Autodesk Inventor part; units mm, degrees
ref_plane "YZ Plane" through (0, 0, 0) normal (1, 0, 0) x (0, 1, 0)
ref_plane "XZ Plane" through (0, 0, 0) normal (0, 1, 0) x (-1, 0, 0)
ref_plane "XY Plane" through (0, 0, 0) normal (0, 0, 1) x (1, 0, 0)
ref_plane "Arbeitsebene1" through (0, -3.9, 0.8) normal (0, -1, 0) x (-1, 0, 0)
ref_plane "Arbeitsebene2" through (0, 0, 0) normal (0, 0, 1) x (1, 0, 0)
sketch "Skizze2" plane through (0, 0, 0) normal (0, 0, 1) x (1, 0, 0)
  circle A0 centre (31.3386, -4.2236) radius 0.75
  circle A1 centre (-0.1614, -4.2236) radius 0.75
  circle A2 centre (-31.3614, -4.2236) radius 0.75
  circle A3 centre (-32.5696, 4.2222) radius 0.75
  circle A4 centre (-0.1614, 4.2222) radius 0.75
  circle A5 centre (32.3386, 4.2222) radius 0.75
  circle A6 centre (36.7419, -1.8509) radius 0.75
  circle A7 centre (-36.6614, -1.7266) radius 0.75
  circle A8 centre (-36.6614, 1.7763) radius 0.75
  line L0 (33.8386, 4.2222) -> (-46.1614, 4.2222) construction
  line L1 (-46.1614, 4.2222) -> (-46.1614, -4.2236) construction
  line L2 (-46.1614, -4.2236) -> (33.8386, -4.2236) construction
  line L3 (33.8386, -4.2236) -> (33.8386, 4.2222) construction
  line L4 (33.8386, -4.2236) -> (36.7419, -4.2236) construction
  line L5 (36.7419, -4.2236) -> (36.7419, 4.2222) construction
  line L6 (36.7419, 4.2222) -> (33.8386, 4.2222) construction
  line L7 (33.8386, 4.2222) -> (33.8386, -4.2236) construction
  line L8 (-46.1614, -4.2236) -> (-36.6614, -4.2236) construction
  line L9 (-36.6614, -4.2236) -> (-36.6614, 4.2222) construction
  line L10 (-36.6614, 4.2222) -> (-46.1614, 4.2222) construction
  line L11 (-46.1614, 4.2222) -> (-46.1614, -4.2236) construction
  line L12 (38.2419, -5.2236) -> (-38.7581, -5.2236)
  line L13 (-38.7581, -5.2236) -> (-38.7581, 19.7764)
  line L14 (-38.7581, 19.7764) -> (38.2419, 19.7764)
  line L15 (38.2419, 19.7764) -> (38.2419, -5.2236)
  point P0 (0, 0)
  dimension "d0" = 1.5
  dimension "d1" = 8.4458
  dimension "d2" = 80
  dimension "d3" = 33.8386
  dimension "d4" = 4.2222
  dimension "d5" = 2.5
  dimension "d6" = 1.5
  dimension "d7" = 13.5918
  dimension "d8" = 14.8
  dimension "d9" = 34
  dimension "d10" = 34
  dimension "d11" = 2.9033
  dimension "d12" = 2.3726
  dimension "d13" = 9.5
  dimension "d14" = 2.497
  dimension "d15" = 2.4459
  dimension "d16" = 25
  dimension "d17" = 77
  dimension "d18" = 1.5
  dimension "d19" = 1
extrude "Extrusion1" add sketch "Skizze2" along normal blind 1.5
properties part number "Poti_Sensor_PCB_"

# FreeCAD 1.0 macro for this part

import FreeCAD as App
import Part
import Sketcher
from FreeCAD import Vector
Q = App.Units.Quantity

doc = App.newDocument("Part")
params = doc.addObject("Spreadsheet::Sheet", "Params")
for row, (alias, value) in enumerate([
    ("sketch1_diameter", "1.5 mm"),
    ("sketch1_width", "77 mm"),
    ("sketch1_height", "25 mm"),
    ("pad1_length", "1.5 mm"),
], start=1):
    params.set(f"A{row}", alias)
    params.set(f"B{row}", "=" + value)
    params.setAlias(f"B{row}", alias)

body = doc.addObject("PartDesign::Body", "Body")

# Sketch on XY plane
sketch1 = doc.addObject("Sketcher::SketchObject", "Sketch")
body.addObject(sketch1)
sketch1.AttachmentSupport = (doc.XY_Plane, [""])
sketch1.MapMode = "FlatFace"
sketch1.addGeometry([
    Part.LineSegment(Vector(-38.8, -5.2, 0), Vector(38.2, -5.2, 0)),  # 0
    Part.LineSegment(Vector(38.2, -5.2, 0), Vector(38.2, 19.8, 0)),  # 1
    Part.LineSegment(Vector(38.2, 19.8, 0), Vector(-38.8, 19.8, 0)),  # 2
    Part.LineSegment(Vector(-38.8, 19.8, 0), Vector(-38.8, -5.2, 0)),  # 3
    Part.Circle(Vector(-31.4, -4.2, 0), Vector(0, 0, 1), 0.8),  # 4
    Part.Circle(Vector(-36.7, -1.7, 0), Vector(0, 0, 1), 0.8),  # 5
    Part.Circle(Vector(-36.7, 1.8, 0), Vector(0, 0, 1), 0.8),  # 6
    Part.Circle(Vector(-32.6, 4.2, 0), Vector(0, 0, 1), 0.8),  # 7
    Part.Circle(Vector(-0.2, -4.2, 0), Vector(0, 0, 1), 0.8),  # 8
    Part.Circle(Vector(31.3, -4.2, 0), Vector(0, 0, 1), 0.8),  # 9
    Part.Circle(Vector(36.7, -1.9, 0), Vector(0, 0, 1), 0.8),  # 10
    Part.Circle(Vector(-0.2, 4.2, 0), Vector(0, 0, 1), 0.8),  # 11
    Part.Circle(Vector(32.3, 4.2, 0), Vector(0, 0, 1), 0.8),  # 12
], False)
sketch1.addConstraint([
    Sketcher.Constraint("Coincident", 0, 2, 1, 1),
    Sketcher.Constraint("Coincident", 1, 2, 2, 1),
    Sketcher.Constraint("Coincident", 2, 2, 3, 1),
    Sketcher.Constraint("Coincident", 3, 2, 0, 1),
    Sketcher.Constraint("Horizontal", 0),
    Sketcher.Constraint("Vertical", 1),
    Sketcher.Constraint("Horizontal", 2),
    Sketcher.Constraint("Vertical", 3),
    Sketcher.Constraint("Equal", 4, 5),
    Sketcher.Constraint("Equal", 5, 6),
    Sketcher.Constraint("Equal", 6, 7),
    Sketcher.Constraint("Equal", 7, 8),
    Sketcher.Constraint("Equal", 8, 9),
    Sketcher.Constraint("Equal", 9, 10),
    Sketcher.Constraint("Equal", 10, 11),
    Sketcher.Constraint("Equal", 11, 12),
    Sketcher.Constraint("Horizontal", 4, 3, 8, 3),
    Sketcher.Constraint("Horizontal", 8, 3, 9, 3),
    Sketcher.Constraint("Horizontal", 7, 3, 11, 3),
    Sketcher.Constraint("Horizontal", 11, 3, 12, 3),
    Sketcher.Constraint("Vertical", 5, 3, 6, 3),
    Sketcher.Constraint("Vertical", 8, 3, 11, 3),
    Sketcher.Constraint("Diameter", 4, Q("1.5 mm")),
    Sketcher.Constraint("DistanceX", 0, 1, 0, 2, Q("77 mm")),
    Sketcher.Constraint("DistanceY", 1, 1, 1, 2, Q("25 mm")),
    Sketcher.Constraint("DistanceX", 9, 3, 12, 3, Q("1 mm")),
    Sketcher.Constraint("DistanceY", 0, 2, 9, 3, Q("1 mm")),
    Sketcher.Constraint("DistanceX", 10, 3, 0, 2, Q("1.5 mm")),
    Sketcher.Constraint("DistanceY", 4, 3, 5, 3, Q("2.497 mm")),
    Sketcher.Constraint("DistanceY", 4, 3, 6, 3, Q("6 mm")),
    Sketcher.Constraint("DistanceY", 6, 3, 7, 3, Q("2.446 mm")),
    Sketcher.Constraint("DistanceX", 5, 3, 9, 3, Q("68 mm")),
    Sketcher.Constraint("DistanceY", -1, 1, 7, 3, Q("4.2222 mm")),
    Sketcher.Constraint("DistanceX", 5, 3, 4, 3, Q("5.3 mm")),
    Sketcher.Constraint("DistanceX", 4, 3, 8, 3, Q("31.2 mm")),
    Sketcher.Constraint("DistanceY", 9, 3, 10, 3, Q("2.3727 mm")),
    Sketcher.Constraint("DistanceX", -1, 1, 10, 3, Q("36.742 mm")),
    Sketcher.Constraint("DistanceX", 4, 3, -1, 1, Q("31.3614 mm")),
    Sketcher.Constraint("DistanceX", 7, 3, -1, 1, Q("32.5696 mm")),
])
sketch1.setExpression("Constraints[22]", "Params.sketch1_diameter")
sketch1.setExpression("Constraints[23]", "Params.sketch1_width")
sketch1.setExpression("Constraints[24]", "Params.sketch1_height")
pad1 = doc.addObject("PartDesign::Pad", "Pad")
body.addObject(pad1)
pad1.Profile = sketch1
pad1.setExpression("Length", "Params.pad1_length")

doc.recompute()
